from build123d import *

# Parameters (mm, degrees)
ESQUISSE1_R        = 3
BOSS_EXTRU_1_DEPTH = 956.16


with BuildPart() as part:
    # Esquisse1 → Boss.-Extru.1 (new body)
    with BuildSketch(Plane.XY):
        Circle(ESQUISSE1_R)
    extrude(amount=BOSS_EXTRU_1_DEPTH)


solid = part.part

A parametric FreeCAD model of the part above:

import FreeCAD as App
import Part
import Sketcher

V = App.Vector
Q = App.Units.Quantity

doc = App.newDocument("Part")
body = doc.addObject("PartDesign::Body", "Body")

# Sketch on XY plane
sketch1 = body.newObject("Sketcher::SketchObject", "Sketch")
sketch1.AttachmentSupport = (doc.getObject("XY_Plane"), [""])
sketch1.MapMode = "FlatFace"
sketch1.addGeometry(Part.Circle(V(0, 0, 0), V(0, 0, 1), 3), False)
sketch1.addConstraint([
    Sketcher.Constraint("Coincident", 0, 3, -1, 1),
    Sketcher.Constraint("Diameter", 0, Q("6 mm")),
])
pad1 = body.newObject("PartDesign::Pad", "Pad")
pad1.Profile = sketch1
pad1.Length = 956.16

doc.recompute()
